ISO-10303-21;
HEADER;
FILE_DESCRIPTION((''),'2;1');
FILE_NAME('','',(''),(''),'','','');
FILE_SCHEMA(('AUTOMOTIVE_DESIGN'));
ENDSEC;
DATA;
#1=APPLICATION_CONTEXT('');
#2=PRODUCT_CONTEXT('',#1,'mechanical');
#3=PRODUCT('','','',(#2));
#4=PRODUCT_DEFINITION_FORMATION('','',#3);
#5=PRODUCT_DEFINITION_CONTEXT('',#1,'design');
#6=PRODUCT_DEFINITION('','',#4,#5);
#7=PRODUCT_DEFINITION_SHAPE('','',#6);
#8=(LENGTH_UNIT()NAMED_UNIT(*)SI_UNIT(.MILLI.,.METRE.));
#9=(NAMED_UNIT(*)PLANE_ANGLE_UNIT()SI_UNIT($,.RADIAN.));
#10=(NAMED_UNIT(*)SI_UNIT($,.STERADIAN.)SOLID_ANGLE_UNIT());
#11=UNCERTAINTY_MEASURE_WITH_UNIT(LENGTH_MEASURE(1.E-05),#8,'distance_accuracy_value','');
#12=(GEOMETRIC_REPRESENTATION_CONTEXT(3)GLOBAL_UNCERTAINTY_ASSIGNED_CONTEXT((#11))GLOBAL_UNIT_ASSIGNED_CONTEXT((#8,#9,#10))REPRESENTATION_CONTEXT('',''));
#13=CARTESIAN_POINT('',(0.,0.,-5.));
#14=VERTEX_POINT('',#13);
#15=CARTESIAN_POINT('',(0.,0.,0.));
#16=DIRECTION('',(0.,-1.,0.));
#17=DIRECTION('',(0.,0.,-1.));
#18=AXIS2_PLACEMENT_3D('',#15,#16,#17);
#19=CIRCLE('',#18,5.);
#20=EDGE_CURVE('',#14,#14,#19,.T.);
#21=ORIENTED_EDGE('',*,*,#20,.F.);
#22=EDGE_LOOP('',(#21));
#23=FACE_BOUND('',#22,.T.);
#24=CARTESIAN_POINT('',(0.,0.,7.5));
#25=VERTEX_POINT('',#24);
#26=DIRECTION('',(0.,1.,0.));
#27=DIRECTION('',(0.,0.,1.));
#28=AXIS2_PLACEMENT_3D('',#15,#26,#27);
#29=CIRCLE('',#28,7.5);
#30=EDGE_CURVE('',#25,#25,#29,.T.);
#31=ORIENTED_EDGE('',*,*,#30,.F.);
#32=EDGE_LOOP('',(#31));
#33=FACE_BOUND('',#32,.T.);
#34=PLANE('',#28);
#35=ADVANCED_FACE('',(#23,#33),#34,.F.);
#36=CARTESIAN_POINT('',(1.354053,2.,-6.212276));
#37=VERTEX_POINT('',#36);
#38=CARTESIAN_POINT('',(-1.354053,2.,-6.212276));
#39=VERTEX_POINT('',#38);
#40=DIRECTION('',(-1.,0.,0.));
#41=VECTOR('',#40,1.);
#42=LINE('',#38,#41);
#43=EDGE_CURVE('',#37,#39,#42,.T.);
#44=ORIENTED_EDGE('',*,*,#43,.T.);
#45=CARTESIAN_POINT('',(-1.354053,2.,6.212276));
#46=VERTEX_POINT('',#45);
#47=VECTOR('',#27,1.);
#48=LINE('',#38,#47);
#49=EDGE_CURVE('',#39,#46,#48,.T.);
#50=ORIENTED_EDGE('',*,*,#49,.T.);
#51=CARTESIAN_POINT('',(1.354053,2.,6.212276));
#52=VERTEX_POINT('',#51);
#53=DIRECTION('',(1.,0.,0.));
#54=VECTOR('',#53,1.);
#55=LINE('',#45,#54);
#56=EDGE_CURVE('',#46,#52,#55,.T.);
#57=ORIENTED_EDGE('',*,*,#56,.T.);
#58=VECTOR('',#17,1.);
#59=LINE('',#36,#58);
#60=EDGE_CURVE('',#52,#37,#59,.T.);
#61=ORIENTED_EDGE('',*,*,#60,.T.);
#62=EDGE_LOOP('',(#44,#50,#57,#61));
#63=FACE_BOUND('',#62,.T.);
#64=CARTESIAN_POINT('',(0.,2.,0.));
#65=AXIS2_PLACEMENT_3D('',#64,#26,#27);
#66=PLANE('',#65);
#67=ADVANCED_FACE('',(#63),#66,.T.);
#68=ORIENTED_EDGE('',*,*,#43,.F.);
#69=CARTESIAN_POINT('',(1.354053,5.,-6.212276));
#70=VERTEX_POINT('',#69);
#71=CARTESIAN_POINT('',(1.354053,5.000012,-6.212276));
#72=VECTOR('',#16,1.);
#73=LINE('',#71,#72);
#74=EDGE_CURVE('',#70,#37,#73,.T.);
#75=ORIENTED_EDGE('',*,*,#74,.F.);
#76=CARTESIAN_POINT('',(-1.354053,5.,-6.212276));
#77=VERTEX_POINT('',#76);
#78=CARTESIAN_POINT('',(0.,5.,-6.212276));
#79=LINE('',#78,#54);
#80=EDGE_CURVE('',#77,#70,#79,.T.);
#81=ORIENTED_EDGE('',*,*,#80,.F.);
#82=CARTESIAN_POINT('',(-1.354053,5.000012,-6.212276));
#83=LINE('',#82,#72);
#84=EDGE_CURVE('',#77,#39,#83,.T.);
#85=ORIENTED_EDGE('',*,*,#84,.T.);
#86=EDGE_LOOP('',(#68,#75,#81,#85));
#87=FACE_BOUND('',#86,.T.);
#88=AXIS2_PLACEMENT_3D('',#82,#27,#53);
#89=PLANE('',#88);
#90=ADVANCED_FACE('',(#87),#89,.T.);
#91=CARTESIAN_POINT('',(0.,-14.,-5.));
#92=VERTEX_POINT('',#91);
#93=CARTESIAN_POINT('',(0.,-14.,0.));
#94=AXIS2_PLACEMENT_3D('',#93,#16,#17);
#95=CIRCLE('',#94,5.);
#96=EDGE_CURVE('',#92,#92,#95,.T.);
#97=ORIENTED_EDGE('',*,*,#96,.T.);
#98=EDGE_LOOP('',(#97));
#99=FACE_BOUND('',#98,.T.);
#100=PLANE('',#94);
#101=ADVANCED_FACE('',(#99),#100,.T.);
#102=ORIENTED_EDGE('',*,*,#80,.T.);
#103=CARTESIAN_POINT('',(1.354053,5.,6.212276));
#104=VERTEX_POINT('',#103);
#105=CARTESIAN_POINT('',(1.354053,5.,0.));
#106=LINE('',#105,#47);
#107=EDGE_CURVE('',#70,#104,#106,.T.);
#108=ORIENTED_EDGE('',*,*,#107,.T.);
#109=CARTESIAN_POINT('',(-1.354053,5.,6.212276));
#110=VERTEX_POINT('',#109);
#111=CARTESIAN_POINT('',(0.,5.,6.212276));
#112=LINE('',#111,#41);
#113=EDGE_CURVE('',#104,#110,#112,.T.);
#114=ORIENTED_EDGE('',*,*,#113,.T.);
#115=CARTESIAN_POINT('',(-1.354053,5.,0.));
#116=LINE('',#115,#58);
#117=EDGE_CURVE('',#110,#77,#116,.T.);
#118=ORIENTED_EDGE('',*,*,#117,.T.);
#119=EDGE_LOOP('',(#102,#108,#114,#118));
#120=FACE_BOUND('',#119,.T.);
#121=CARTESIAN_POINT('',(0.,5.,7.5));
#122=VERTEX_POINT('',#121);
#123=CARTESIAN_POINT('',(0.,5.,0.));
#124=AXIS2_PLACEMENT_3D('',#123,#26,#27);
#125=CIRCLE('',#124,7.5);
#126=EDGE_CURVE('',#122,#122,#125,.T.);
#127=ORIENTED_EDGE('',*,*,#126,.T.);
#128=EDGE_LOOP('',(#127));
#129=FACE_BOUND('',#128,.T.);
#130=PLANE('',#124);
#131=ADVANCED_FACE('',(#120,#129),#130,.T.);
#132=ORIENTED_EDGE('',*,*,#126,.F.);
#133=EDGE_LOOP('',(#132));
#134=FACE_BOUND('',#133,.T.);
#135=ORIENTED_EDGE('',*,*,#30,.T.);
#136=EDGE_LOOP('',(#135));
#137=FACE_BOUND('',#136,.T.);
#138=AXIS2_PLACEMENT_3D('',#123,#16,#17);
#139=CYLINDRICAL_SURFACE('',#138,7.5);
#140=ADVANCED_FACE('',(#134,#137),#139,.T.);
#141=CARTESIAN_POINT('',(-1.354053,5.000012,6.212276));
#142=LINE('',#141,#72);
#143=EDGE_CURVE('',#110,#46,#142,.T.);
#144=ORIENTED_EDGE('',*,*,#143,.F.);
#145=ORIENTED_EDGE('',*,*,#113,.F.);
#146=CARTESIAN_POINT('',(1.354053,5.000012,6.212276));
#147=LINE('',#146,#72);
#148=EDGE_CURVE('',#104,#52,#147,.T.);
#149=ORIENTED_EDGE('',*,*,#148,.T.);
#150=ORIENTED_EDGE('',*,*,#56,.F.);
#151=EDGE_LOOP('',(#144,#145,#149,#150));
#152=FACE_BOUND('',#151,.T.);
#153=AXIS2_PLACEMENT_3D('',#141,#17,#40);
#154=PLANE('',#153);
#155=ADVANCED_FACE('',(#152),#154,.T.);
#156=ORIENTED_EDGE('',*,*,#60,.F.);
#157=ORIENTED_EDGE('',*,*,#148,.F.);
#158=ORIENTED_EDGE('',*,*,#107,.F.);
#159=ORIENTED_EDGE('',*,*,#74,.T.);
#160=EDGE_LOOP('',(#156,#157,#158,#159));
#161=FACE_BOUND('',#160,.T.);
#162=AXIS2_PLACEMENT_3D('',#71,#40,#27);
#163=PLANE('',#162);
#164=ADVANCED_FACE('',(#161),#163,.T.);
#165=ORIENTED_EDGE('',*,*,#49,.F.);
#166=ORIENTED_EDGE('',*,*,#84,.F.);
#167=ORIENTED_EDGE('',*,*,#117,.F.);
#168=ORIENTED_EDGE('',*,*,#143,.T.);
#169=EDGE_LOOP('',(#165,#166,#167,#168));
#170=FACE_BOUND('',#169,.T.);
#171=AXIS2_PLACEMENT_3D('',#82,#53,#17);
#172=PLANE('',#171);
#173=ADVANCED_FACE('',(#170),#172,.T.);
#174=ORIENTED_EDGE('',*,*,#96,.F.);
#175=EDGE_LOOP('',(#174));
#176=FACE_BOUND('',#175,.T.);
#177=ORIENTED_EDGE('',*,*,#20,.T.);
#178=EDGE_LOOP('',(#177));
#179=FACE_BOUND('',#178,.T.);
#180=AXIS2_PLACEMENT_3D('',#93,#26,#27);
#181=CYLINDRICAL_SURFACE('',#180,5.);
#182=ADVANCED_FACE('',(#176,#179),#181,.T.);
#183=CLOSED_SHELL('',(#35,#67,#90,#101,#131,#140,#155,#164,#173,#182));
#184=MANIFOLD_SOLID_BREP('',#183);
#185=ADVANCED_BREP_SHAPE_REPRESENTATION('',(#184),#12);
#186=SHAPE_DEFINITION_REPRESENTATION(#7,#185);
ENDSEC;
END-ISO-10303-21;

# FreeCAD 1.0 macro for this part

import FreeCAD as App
import Part
import Sketcher

V = App.Vector
Q = App.Units.Quantity


def add_polygon(sketch, points):
    """Adds a closed chain of lines whose ends are joined by coincident constraints."""
    first, n = sketch.GeometryCount, len(points)
    for a, b in zip(points, points[1:] + points[:1]):
        sketch.addGeometry(Part.LineSegment(App.Vector(*a, 0), App.Vector(*b, 0)), False)
    for i in range(n):
        sketch.addConstraint(Sketcher.Constraint("Coincident", first + i, 2, first + (i + 1) % n, 1))

doc = App.newDocument("Part")
params = doc.addObject("Spreadsheet::Sheet", "Params")
for row, (alias, value) in enumerate([
    ("sketch1_diameter", "15 mm"),
    ("pad1_length", "5 mm"),
    ("sketch2_diameter", "10 mm"),
    ("pad2_length", "14 mm"),
    ("pocket1_length", "22.760055 mm"),
    ("pocket1_length2", "3 mm"),
], start=1):
    params.set(f"A{row}", alias)
    params.set(f"B{row}", "=" + value)
    params.setAlias(f"B{row}", alias)

body = doc.addObject("PartDesign::Body", "Body")

# Sketch on XZ plane
sketch1 = body.newObject("Sketcher::SketchObject", "Sketch")
sketch1.AttachmentSupport = (doc.getObject("XZ_Plane"), [""])
sketch1.MapMode = "FlatFace"
sketch1.addGeometry(Part.Circle(V(0, 0, 0), V(0, 0, 1), 8), False)
sketch1.addConstraint([
    Sketcher.Constraint("Coincident", 0, 3, -1, 1),
    Sketcher.Constraint("Diameter", 0, Q("15 mm")),
])
sketch1.setExpression("Constraints[1]", "Params.sketch1_diameter")
pad1 = body.newObject("PartDesign::Pad", "Pad")
pad1.Profile = sketch1
pad1.setExpression("Length", "Params.pad1_length")
pad1.Reversed = True

# Sketch on XZ plane
sketch2 = body.newObject("Sketcher::SketchObject", "Sketch001")
sketch2.AttachmentSupport = (doc.getObject("XZ_Plane"), [""])
sketch2.MapMode = "FlatFace"
sketch2.addGeometry(Part.Circle(V(0, 0, 0), V(0, 0, 1), 5), False)
sketch2.addConstraint([
    Sketcher.Constraint("Coincident", 0, 3, -1, 1),
    Sketcher.Constraint("Diameter", 0, Q("10 mm")),
])
sketch2.setExpression("Constraints[1]", "Params.sketch2_diameter")
pad2 = body.newObject("PartDesign::Pad", "Pad001")
pad2.Profile = sketch2
pad2.setExpression("Length", "Params.pad2_length")

# Sketch on XZ plane
sketch3 = body.newObject("Sketcher::SketchObject", "Sketch002")
sketch3.AttachmentSupport = (doc.getObject("XZ_Plane"), [""])
sketch3.MapMode = "FlatFace"
sketch3.AttachmentOffset = App.Placement(V(0, 0, -5), App.Rotation())
add_polygon(sketch3, [(-1.4, -6.2), (-1.4, 6.2), (1.4, 6.2), (1.4, -6.2)])  # lines 0-3
sketch3.addConstraint([
    Sketcher.Constraint("Vertical", 0),
    Sketcher.Constraint("Horizontal", 1),
    Sketcher.Constraint("Vertical", 2),
    Sketcher.Constraint("Horizontal", 3),
    Sketcher.Constraint("Symmetric", 0, 2, 2, 2, -1, 1),
    Sketcher.Constraint("DistanceY", 0, 1, 0, 2, Q("12.424551 mm")),
    Sketcher.Constraint("DistanceX", 1, 1, 1, 2, Q("2.708106 mm")),
])
pocket1 = body.newObject("PartDesign::Pocket", "Pocket")
pocket1.Profile = sketch3
pocket1.Type = "TwoLengths"
pocket1.setExpression("Length", "Params.pocket1_length")
pocket1.setExpression("Length2", "Params.pocket1_length2")

doc.recompute()
